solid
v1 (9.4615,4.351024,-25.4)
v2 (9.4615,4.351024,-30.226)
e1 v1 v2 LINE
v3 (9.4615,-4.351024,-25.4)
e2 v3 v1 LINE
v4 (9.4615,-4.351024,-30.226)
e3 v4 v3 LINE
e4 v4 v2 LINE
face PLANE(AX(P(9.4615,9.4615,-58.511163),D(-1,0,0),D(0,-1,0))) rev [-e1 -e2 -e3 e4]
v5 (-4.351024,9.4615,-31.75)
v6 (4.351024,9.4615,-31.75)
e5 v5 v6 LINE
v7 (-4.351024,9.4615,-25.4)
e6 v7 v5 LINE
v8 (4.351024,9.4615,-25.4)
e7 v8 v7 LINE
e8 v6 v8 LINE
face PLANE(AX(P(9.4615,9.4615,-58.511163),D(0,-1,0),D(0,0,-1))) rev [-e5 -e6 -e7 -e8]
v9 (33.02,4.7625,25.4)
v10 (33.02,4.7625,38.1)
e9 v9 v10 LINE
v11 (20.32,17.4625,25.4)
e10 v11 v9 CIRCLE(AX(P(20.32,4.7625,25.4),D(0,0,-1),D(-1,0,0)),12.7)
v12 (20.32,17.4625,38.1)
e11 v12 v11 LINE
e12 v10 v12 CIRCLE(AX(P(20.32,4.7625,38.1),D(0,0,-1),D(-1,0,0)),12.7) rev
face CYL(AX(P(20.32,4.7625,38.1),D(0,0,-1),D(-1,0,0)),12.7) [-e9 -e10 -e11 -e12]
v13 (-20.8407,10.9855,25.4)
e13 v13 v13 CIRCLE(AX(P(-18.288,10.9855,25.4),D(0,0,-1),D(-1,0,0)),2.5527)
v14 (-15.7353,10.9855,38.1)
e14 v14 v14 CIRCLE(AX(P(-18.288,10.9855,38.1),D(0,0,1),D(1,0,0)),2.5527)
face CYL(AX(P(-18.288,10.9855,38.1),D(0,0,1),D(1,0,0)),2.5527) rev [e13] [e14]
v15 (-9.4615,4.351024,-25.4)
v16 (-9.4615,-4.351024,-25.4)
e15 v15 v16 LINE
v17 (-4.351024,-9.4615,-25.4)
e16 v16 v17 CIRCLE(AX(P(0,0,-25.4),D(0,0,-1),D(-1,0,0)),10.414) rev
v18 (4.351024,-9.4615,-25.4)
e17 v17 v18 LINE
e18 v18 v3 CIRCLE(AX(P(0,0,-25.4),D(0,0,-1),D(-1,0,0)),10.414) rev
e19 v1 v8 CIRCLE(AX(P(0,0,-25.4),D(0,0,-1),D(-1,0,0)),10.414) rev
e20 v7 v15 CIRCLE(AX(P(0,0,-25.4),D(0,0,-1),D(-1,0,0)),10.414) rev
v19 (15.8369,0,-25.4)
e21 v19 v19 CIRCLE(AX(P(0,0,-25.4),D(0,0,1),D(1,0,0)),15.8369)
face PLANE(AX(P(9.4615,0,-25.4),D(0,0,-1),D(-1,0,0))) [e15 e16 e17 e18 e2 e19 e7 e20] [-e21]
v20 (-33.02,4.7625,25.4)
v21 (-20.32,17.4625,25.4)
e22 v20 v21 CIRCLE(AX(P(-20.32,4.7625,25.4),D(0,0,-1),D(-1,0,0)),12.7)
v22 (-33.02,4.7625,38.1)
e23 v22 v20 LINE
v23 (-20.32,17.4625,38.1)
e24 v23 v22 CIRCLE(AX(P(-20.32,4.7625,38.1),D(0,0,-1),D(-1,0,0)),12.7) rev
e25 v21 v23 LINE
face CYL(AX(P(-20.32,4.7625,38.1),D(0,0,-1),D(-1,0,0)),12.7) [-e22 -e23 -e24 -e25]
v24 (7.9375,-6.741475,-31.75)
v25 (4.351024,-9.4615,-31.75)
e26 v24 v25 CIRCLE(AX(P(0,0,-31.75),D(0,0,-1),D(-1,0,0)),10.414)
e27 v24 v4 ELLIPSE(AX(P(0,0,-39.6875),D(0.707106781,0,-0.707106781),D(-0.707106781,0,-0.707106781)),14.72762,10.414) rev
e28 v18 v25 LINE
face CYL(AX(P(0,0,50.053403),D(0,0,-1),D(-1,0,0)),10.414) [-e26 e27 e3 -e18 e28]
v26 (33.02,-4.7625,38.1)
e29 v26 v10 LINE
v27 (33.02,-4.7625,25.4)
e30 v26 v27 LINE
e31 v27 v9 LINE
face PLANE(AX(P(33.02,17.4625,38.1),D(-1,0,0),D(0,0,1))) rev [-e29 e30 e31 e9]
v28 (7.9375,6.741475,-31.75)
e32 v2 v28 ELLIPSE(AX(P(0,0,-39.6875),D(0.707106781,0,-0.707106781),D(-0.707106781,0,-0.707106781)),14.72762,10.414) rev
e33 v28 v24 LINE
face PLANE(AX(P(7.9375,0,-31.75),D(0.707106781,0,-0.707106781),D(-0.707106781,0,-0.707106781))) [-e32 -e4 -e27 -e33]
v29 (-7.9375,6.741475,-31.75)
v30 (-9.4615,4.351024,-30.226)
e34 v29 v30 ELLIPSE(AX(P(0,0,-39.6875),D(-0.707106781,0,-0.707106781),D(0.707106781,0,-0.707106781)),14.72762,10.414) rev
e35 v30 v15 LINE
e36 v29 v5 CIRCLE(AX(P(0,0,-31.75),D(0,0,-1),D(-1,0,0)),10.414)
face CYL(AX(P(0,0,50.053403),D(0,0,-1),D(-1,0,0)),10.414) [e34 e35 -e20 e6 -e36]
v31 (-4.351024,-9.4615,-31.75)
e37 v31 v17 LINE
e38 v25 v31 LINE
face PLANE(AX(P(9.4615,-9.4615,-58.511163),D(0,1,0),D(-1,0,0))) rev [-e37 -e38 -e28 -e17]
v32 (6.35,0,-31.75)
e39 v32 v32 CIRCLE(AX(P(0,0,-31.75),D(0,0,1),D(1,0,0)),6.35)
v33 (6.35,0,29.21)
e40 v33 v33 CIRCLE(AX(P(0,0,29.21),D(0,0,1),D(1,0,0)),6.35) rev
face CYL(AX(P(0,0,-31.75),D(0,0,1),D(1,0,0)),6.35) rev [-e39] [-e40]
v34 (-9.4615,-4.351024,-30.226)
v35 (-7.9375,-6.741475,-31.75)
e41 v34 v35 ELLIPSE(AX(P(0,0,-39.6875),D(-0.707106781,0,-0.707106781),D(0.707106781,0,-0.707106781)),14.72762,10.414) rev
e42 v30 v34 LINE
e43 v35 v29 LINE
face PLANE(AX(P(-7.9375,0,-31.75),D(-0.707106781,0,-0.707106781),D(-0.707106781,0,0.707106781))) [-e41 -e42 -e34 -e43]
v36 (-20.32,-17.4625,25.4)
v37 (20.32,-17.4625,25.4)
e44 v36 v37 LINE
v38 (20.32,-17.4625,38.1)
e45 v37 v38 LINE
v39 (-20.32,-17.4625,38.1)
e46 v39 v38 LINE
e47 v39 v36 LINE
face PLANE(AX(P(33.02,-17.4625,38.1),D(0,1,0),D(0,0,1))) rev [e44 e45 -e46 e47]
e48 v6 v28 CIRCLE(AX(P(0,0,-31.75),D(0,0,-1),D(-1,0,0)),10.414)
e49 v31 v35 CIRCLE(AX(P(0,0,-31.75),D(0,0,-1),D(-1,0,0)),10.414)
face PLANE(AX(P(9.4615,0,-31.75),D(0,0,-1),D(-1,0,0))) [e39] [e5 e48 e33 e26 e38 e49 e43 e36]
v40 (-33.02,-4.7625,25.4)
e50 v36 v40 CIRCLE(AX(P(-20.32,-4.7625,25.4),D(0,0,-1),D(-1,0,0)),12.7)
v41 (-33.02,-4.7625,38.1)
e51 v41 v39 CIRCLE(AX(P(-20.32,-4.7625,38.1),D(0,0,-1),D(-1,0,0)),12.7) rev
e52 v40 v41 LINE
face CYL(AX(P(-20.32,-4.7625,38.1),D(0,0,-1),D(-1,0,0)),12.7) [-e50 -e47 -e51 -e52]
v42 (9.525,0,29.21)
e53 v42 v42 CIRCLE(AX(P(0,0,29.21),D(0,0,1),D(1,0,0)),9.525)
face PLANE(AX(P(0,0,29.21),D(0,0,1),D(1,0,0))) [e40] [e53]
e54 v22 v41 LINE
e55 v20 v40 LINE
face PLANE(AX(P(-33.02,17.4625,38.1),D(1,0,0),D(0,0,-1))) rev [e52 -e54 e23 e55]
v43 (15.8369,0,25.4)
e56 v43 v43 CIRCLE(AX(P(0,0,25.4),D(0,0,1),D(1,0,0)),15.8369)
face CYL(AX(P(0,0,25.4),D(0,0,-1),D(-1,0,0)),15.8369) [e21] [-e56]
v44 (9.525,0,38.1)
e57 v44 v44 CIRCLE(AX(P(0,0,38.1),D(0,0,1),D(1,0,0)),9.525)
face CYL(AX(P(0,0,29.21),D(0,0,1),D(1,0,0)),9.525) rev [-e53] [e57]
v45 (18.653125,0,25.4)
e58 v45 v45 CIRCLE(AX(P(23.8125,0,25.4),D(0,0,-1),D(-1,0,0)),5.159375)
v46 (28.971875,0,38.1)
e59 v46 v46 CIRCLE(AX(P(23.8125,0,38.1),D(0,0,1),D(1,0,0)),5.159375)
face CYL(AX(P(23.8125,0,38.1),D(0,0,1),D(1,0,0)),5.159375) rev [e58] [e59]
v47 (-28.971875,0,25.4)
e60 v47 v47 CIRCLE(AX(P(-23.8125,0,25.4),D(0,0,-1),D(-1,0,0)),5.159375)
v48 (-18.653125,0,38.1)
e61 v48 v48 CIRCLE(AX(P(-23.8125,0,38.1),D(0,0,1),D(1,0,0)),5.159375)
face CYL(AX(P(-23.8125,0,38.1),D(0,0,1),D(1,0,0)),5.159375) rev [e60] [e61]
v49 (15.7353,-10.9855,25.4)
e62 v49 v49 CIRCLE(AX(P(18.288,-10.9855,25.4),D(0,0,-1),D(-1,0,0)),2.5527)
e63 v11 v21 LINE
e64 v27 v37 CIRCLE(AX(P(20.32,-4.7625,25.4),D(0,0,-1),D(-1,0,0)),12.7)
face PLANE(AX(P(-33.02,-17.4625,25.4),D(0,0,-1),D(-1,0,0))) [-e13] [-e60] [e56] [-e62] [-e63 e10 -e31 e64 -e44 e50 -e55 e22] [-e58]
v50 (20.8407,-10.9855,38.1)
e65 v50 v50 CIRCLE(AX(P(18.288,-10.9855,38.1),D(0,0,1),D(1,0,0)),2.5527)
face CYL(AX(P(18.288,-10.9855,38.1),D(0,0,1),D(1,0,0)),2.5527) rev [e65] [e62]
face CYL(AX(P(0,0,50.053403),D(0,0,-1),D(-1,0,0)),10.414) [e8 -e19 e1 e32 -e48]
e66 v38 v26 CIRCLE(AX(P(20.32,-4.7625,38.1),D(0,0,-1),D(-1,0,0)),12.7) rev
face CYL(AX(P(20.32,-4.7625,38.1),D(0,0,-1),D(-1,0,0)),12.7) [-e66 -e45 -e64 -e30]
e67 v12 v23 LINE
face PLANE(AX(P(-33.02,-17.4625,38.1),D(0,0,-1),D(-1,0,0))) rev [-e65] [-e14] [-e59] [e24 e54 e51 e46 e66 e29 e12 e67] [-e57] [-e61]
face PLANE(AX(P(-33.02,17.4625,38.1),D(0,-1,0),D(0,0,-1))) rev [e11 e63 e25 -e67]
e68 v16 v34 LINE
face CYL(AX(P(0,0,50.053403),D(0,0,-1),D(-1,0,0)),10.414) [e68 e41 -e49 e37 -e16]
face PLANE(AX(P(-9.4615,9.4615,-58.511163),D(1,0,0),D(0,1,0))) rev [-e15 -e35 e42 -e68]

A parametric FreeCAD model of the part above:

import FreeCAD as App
import Part
import Sketcher
from FreeCAD import Vector
Q = App.Units.Quantity


def edges_at(feature, points):
    """Names of the edges that pass closest to the given points."""
    edges = feature.Shape.Edges
    near = lambda p: min(range(len(edges)), key=lambda i: edges[i].distToShape(Part.Vertex(*p))[0])
    return sorted({f"Edge{near(p) + 1}" for p in points})


def add_polygon(sketch, points):
    """Adds a closed chain of lines whose ends are joined by coincident constraints."""
    first, n = sketch.GeometryCount, len(points)
    for a, b in zip(points, points[1:] + points[:1]):
        sketch.addGeometry(Part.LineSegment(App.Vector(*a, 0), App.Vector(*b, 0)), False)
    for i in range(n):
        sketch.addConstraint(Sketcher.Constraint("Coincident", first + i, 2, first + (i + 1) % n, 1))

doc = App.newDocument("Part")
body = doc.addObject("PartDesign::Body", "Body")

# Sketch on XY plane
sketch1 = doc.addObject("Sketcher::SketchObject", "Sketch")
body.addObject(sketch1)
sketch1.AttachmentSupport = (doc.XY_Plane, [""])
sketch1.MapMode = "FlatFace"
sketch1.addGeometry(Part.Circle(Vector(0, 0, 0), Vector(0, 0, 1), 15.8369), False)
sketch1.addConstraint(Sketcher.Constraint("Coincident", 0, 3, -1, 1))
sketch1.addConstraint(Sketcher.Constraint("Diameter", 0, Q("1.247 in")))
pad1 = doc.addObject("PartDesign::Pad", "Pad")
body.addObject(pad1)
pad1.Profile = sketch1
pad1.Length = Q("1 in")

# Sketch on XY plane
sketch2 = doc.addObject("Sketcher::SketchObject", "Sketch001")
body.addObject(sketch2)
sketch2.AttachmentSupport = (doc.XY_Plane, [""])
sketch2.MapMode = "FlatFace"
sketch2.AttachmentOffset = App.Placement(Vector(0, 0, 1 * 25.4), App.Rotation())
add_polygon(sketch2, [(-33.02, 17.4625), (-33.02, -17.4625), (33.02, -17.4625), (33.02, 17.4625)])  # lines 0-3
sketch2.addConstraint(Sketcher.Constraint("Vertical", 0))
sketch2.addConstraint(Sketcher.Constraint("Horizontal", 1))
sketch2.addConstraint(Sketcher.Constraint("Vertical", 2))
sketch2.addConstraint(Sketcher.Constraint("Horizontal", 3))
sketch2.addConstraint(Sketcher.Constraint("Symmetric", 0, 2, 2, 2, -1, 1))
sketch2.addConstraint(Sketcher.Constraint("DistanceX", 1, 1, 1, 2, Q("2.6 in")))
sketch2.addConstraint(Sketcher.Constraint("DistanceY", 0, 2, 0, 1, Q("1.375 in")))
pad2 = doc.addObject("PartDesign::Pad", "Pad001")
body.addObject(pad2)
pad2.Profile = sketch2
pad2.Length = Q("0.5 in")

# Sketch on XZ plane
sketch3 = doc.addObject("Sketcher::SketchObject", "Sketch002")
body.addObject(sketch3)
sketch3.AttachmentSupport = (doc.XZ_Plane, [""])
sketch3.MapMode = "FlatFace"
add_polygon(sketch3, [(0, -31.75), (0, 0), (15.8369, 0), (15.8369, -25.4), (9.4615, -25.4), (9.4615, -31.75)])  # lines 0-5
sketch3.addConstraint(Sketcher.Constraint("Vertical", 0))
sketch3.addConstraint(Sketcher.Constraint("Horizontal", 1))
sketch3.addConstraint(Sketcher.Constraint("Vertical", 2))
sketch3.addConstraint(Sketcher.Constraint("Horizontal", 3))
sketch3.addConstraint(Sketcher.Constraint("Vertical", 4))
sketch3.addConstraint(Sketcher.Constraint("Horizontal", 5))
sketch3.addConstraint(Sketcher.Constraint("Coincident", 0, 2, -1, 1))
sketch3.addConstraint(Sketcher.Constraint("DistanceY", 2, 2, 2, 1, Q("1 in")))
sketch3.addConstraint(Sketcher.Constraint("DistanceY", 0, 1, 0, 2, Q("1.25 in")))
sketch3.addConstraint(Sketcher.Constraint("DistanceX", 3, 2, 3, 1, Q("0.251 in")))
sketch3.addConstraint(Sketcher.Constraint("DistanceX", 1, 1, 1, 2, Q("0.6235 in")))
revolution = doc.addObject("PartDesign::Revolution", "Revolution")
body.addObject(revolution)
revolution.Profile = sketch3
revolution.ReferenceAxis = (sketch3, ["V_Axis"])
revolution.Angle = 360

# Sketch on XY plane
sketch4 = doc.addObject("Sketcher::SketchObject", "Sketch003")
body.addObject(sketch4)
sketch4.AttachmentSupport = (doc.XY_Plane, [""])
sketch4.MapMode = "FlatFace"
sketch4.AttachmentOffset = App.Placement(Vector(0, 0, 1.5 * 25.4), App.Rotation())
sketch4.addGeometry(Part.Circle(Vector(0, 0, 0), Vector(0, 0, 1), 6.35), False)
sketch4.addConstraint(Sketcher.Constraint("Coincident", 0, 3, -1, 1))
sketch4.addConstraint(Sketcher.Constraint("Diameter", 0, Q("0.5 in")))
pocket1 = doc.addObject("PartDesign::Pocket", "Pocket")
body.addObject(pocket1)
pocket1.Profile = sketch4
pocket1.Type = "ThroughAll"

# Sketch on XY plane
sketch5 = doc.addObject("Sketcher::SketchObject", "Sketch004")
body.addObject(sketch5)
sketch5.AttachmentSupport = (doc.XY_Plane, [""])
sketch5.MapMode = "FlatFace"
sketch5.AttachmentOffset = App.Placement(Vector(0, 0, 1.5 * 25.4), App.Rotation())
sketch5.addGeometry(Part.Circle(Vector(0, 0, 0), Vector(0, 0, 1), 9.525), False)
sketch5.addConstraint(Sketcher.Constraint("Coincident", 0, 3, -1, 1))
sketch5.addConstraint(Sketcher.Constraint("Diameter", 0, Q("0.75 in")))
pocket2 = doc.addObject("PartDesign::Pocket", "Pocket001")
body.addObject(pocket2)
pocket2.Profile = sketch5
pocket2.Length = Q("0.35 in")

# Sketch on XY plane
sketch6 = doc.addObject("Sketcher::SketchObject", "Sketch005")
body.addObject(sketch6)
sketch6.AttachmentSupport = (doc.XY_Plane, [""])
sketch6.MapMode = "FlatFace"
sketch6.AttachmentOffset = App.Placement(Vector(0, 0, -1 * 25.4), App.Rotation())
add_polygon(sketch6, [(9.4615, 9.4615), (9.4615, -9.4615), (-9.4615, -9.4615), (-9.4615, 9.4615)])  # lines 0-3
sketch6.addGeometry(Part.Circle(Vector(0, 0, 0), Vector(0, 0, 1), 6.35), False)  # 4
sketch6.addConstraint(Sketcher.Constraint("Vertical", 0))
sketch6.addConstraint(Sketcher.Constraint("Horizontal", 1))
sketch6.addConstraint(Sketcher.Constraint("Vertical", 2))
sketch6.addConstraint(Sketcher.Constraint("Horizontal", 3))
sketch6.addConstraint(Sketcher.Constraint("Coincident", 4, 3, -1, 1))
sketch6.addConstraint(Sketcher.Constraint("Symmetric", 0, 2, 2, 2, -1, 1))
sketch6.addConstraint(Sketcher.Constraint("Equal", 3, 0))
sketch6.addConstraint(Sketcher.Constraint("Diameter", 4, Q("0.5 in")))
sketch6.addConstraint(Sketcher.Constraint("DistanceX", 1, 2, 1, 1, Q("0.745 in")))
pad3 = doc.addObject("PartDesign::Pad", "Pad002")
body.addObject(pad3)
pad3.Profile = sketch6
pad3.Length = Q("0.25 in")
pad3.Reversed = True

# Sketch on XY plane
sketch7 = doc.addObject("Sketcher::SketchObject", "Sketch006")
body.addObject(sketch7)
sketch7.AttachmentSupport = (doc.XY_Plane, [""])
sketch7.MapMode = "FlatFace"
sketch7.AttachmentOffset = App.Placement(Vector(0, 0, -1.25 * 25.4), App.Rotation())
add_polygon(sketch7, [(44.247, 28.69), (44.247, -28.69), (-44.247, -28.69), (-44.247, 28.69)])  # lines 0-3
sketch7.addGeometry(Part.Circle(Vector(0, 0, 0), Vector(0, 0, 1), 10.414), False)  # 4
sketch7.addConstraint(Sketcher.Constraint("Vertical", 0))
sketch7.addConstraint(Sketcher.Constraint("Horizontal", 1))
sketch7.addConstraint(Sketcher.Constraint("Vertical", 2))
sketch7.addConstraint(Sketcher.Constraint("Horizontal", 3))
sketch7.addConstraint(Sketcher.Constraint("Coincident", 4, 3, -1, 1))
sketch7.addConstraint(Sketcher.Constraint("Symmetric", 0, 2, 2, 2, -1, 1))
sketch7.addConstraint(Sketcher.Constraint("Diameter", 4, Q("0.82 in")))
sketch7.addConstraint(Sketcher.Constraint("DistanceX", 1, 2, 1, 1, 88.494))
sketch7.addConstraint(Sketcher.Constraint("DistanceY", 0, 2, 0, 1, 57.38))
pocket3 = doc.addObject("PartDesign::Pocket", "Pocket002")
body.addObject(pocket3)
pocket3.Profile = sketch7
pocket3.Length = Q("0.25 in")
pocket3.Reversed = True
doc.recompute()

fillet = doc.addObject("PartDesign::Fillet", "Fillet")
body.addObject(fillet)
fillet.Base = (pocket3, edges_at(pocket3, [
    (-33.02, 17.462, 31.75),
    (-33.02, -17.462, 31.75),
    (33.02, -17.462, 31.75),
    (33.02, 17.462, 31.75),
]))
fillet.Radius = Q("0.5 in")

# Sketch on XY plane
sketch8 = doc.addObject("Sketcher::SketchObject", "Sketch007")
body.addObject(sketch8)
sketch8.AttachmentSupport = (doc.XY_Plane, [""])
sketch8.MapMode = "FlatFace"
sketch8.AttachmentOffset = App.Placement(Vector(0, 0, 1.5 * 25.4), App.Rotation())
sketch8.addGeometry(Part.Circle(Vector(18.288, -10.9855, 0), Vector(0, 0, 1), 2.5527), False)
sketch8.addGeometry(Part.Circle(Vector(-18.288, 10.9855, 0), Vector(0, 0, 1), 2.5527), False)
sketch8.addConstraint(Sketcher.Constraint("Equal", 0, 1))
sketch8.addConstraint(Sketcher.Constraint("Symmetric", 0, 3, 1, 3, -1, 1))
sketch8.addConstraint(Sketcher.Constraint("Diameter", 0, Q("0.201 in")))
sketch8.addConstraint(Sketcher.Constraint("DistanceX", -1, 1, 0, 3, Q("0.72 in")))
sketch8.addConstraint(Sketcher.Constraint("DistanceY", 0, 3, 1, 3, Q("0.865 in")))
doc.recompute()
hole = doc.addObject("PartDesign::Hole", "Hole")
body.addObject(hole)
hole.Profile = sketch8
hole.ThreadType = "None"
hole.Diameter = Q("0.201 in")
hole.DepthType = "ThroughAll"

# Sketch on XY plane
sketch9 = doc.addObject("Sketcher::SketchObject", "Sketch008")
body.addObject(sketch9)
sketch9.AttachmentSupport = (doc.XY_Plane, [""])
sketch9.MapMode = "FlatFace"
sketch9.AttachmentOffset = App.Placement(Vector(0, 0, 1.5 * 25.4), App.Rotation())
sketch9.addGeometry(Part.Circle(Vector(-23.8125, 0, 0), Vector(0, 0, 1), 5.159375), False)
sketch9.addGeometry(Part.Circle(Vector(23.8125, 0, 0), Vector(0, 0, 1), 5.159375), False)
sketch9.addConstraint(Sketcher.Constraint("Equal", 0, 1))
sketch9.addConstraint(Sketcher.Constraint("Symmetric", 0, 3, 1, 3, -1, 1))
sketch9.addConstraint(Sketcher.Constraint("PointOnObject", 0, 3, -1))
sketch9.addConstraint(Sketcher.Constraint("Diameter", 0, Q("0.40625 in")))
sketch9.addConstraint(Sketcher.Constraint("DistanceX", 0, 3, -1, 1, Q("0.9375 in")))
doc.recompute()
hole2 = doc.addObject("PartDesign::Hole", "Hole001")
body.addObject(hole2)
hole2.Profile = sketch9
hole2.ThreadType = "None"
hole2.Diameter = Q("0.40625 in")
hole2.DepthType = "ThroughAll"
doc.recompute()

chamfer = doc.addObject("PartDesign::Chamfer", "Chamfer")
body.addObject(chamfer)
chamfer.Base = (hole2, edges_at(hole2, [(9.461, 0, -31.75), (-9.461, 0, -31.75)]))
chamfer.Size = Q("0.06 in")

doc.recompute()
